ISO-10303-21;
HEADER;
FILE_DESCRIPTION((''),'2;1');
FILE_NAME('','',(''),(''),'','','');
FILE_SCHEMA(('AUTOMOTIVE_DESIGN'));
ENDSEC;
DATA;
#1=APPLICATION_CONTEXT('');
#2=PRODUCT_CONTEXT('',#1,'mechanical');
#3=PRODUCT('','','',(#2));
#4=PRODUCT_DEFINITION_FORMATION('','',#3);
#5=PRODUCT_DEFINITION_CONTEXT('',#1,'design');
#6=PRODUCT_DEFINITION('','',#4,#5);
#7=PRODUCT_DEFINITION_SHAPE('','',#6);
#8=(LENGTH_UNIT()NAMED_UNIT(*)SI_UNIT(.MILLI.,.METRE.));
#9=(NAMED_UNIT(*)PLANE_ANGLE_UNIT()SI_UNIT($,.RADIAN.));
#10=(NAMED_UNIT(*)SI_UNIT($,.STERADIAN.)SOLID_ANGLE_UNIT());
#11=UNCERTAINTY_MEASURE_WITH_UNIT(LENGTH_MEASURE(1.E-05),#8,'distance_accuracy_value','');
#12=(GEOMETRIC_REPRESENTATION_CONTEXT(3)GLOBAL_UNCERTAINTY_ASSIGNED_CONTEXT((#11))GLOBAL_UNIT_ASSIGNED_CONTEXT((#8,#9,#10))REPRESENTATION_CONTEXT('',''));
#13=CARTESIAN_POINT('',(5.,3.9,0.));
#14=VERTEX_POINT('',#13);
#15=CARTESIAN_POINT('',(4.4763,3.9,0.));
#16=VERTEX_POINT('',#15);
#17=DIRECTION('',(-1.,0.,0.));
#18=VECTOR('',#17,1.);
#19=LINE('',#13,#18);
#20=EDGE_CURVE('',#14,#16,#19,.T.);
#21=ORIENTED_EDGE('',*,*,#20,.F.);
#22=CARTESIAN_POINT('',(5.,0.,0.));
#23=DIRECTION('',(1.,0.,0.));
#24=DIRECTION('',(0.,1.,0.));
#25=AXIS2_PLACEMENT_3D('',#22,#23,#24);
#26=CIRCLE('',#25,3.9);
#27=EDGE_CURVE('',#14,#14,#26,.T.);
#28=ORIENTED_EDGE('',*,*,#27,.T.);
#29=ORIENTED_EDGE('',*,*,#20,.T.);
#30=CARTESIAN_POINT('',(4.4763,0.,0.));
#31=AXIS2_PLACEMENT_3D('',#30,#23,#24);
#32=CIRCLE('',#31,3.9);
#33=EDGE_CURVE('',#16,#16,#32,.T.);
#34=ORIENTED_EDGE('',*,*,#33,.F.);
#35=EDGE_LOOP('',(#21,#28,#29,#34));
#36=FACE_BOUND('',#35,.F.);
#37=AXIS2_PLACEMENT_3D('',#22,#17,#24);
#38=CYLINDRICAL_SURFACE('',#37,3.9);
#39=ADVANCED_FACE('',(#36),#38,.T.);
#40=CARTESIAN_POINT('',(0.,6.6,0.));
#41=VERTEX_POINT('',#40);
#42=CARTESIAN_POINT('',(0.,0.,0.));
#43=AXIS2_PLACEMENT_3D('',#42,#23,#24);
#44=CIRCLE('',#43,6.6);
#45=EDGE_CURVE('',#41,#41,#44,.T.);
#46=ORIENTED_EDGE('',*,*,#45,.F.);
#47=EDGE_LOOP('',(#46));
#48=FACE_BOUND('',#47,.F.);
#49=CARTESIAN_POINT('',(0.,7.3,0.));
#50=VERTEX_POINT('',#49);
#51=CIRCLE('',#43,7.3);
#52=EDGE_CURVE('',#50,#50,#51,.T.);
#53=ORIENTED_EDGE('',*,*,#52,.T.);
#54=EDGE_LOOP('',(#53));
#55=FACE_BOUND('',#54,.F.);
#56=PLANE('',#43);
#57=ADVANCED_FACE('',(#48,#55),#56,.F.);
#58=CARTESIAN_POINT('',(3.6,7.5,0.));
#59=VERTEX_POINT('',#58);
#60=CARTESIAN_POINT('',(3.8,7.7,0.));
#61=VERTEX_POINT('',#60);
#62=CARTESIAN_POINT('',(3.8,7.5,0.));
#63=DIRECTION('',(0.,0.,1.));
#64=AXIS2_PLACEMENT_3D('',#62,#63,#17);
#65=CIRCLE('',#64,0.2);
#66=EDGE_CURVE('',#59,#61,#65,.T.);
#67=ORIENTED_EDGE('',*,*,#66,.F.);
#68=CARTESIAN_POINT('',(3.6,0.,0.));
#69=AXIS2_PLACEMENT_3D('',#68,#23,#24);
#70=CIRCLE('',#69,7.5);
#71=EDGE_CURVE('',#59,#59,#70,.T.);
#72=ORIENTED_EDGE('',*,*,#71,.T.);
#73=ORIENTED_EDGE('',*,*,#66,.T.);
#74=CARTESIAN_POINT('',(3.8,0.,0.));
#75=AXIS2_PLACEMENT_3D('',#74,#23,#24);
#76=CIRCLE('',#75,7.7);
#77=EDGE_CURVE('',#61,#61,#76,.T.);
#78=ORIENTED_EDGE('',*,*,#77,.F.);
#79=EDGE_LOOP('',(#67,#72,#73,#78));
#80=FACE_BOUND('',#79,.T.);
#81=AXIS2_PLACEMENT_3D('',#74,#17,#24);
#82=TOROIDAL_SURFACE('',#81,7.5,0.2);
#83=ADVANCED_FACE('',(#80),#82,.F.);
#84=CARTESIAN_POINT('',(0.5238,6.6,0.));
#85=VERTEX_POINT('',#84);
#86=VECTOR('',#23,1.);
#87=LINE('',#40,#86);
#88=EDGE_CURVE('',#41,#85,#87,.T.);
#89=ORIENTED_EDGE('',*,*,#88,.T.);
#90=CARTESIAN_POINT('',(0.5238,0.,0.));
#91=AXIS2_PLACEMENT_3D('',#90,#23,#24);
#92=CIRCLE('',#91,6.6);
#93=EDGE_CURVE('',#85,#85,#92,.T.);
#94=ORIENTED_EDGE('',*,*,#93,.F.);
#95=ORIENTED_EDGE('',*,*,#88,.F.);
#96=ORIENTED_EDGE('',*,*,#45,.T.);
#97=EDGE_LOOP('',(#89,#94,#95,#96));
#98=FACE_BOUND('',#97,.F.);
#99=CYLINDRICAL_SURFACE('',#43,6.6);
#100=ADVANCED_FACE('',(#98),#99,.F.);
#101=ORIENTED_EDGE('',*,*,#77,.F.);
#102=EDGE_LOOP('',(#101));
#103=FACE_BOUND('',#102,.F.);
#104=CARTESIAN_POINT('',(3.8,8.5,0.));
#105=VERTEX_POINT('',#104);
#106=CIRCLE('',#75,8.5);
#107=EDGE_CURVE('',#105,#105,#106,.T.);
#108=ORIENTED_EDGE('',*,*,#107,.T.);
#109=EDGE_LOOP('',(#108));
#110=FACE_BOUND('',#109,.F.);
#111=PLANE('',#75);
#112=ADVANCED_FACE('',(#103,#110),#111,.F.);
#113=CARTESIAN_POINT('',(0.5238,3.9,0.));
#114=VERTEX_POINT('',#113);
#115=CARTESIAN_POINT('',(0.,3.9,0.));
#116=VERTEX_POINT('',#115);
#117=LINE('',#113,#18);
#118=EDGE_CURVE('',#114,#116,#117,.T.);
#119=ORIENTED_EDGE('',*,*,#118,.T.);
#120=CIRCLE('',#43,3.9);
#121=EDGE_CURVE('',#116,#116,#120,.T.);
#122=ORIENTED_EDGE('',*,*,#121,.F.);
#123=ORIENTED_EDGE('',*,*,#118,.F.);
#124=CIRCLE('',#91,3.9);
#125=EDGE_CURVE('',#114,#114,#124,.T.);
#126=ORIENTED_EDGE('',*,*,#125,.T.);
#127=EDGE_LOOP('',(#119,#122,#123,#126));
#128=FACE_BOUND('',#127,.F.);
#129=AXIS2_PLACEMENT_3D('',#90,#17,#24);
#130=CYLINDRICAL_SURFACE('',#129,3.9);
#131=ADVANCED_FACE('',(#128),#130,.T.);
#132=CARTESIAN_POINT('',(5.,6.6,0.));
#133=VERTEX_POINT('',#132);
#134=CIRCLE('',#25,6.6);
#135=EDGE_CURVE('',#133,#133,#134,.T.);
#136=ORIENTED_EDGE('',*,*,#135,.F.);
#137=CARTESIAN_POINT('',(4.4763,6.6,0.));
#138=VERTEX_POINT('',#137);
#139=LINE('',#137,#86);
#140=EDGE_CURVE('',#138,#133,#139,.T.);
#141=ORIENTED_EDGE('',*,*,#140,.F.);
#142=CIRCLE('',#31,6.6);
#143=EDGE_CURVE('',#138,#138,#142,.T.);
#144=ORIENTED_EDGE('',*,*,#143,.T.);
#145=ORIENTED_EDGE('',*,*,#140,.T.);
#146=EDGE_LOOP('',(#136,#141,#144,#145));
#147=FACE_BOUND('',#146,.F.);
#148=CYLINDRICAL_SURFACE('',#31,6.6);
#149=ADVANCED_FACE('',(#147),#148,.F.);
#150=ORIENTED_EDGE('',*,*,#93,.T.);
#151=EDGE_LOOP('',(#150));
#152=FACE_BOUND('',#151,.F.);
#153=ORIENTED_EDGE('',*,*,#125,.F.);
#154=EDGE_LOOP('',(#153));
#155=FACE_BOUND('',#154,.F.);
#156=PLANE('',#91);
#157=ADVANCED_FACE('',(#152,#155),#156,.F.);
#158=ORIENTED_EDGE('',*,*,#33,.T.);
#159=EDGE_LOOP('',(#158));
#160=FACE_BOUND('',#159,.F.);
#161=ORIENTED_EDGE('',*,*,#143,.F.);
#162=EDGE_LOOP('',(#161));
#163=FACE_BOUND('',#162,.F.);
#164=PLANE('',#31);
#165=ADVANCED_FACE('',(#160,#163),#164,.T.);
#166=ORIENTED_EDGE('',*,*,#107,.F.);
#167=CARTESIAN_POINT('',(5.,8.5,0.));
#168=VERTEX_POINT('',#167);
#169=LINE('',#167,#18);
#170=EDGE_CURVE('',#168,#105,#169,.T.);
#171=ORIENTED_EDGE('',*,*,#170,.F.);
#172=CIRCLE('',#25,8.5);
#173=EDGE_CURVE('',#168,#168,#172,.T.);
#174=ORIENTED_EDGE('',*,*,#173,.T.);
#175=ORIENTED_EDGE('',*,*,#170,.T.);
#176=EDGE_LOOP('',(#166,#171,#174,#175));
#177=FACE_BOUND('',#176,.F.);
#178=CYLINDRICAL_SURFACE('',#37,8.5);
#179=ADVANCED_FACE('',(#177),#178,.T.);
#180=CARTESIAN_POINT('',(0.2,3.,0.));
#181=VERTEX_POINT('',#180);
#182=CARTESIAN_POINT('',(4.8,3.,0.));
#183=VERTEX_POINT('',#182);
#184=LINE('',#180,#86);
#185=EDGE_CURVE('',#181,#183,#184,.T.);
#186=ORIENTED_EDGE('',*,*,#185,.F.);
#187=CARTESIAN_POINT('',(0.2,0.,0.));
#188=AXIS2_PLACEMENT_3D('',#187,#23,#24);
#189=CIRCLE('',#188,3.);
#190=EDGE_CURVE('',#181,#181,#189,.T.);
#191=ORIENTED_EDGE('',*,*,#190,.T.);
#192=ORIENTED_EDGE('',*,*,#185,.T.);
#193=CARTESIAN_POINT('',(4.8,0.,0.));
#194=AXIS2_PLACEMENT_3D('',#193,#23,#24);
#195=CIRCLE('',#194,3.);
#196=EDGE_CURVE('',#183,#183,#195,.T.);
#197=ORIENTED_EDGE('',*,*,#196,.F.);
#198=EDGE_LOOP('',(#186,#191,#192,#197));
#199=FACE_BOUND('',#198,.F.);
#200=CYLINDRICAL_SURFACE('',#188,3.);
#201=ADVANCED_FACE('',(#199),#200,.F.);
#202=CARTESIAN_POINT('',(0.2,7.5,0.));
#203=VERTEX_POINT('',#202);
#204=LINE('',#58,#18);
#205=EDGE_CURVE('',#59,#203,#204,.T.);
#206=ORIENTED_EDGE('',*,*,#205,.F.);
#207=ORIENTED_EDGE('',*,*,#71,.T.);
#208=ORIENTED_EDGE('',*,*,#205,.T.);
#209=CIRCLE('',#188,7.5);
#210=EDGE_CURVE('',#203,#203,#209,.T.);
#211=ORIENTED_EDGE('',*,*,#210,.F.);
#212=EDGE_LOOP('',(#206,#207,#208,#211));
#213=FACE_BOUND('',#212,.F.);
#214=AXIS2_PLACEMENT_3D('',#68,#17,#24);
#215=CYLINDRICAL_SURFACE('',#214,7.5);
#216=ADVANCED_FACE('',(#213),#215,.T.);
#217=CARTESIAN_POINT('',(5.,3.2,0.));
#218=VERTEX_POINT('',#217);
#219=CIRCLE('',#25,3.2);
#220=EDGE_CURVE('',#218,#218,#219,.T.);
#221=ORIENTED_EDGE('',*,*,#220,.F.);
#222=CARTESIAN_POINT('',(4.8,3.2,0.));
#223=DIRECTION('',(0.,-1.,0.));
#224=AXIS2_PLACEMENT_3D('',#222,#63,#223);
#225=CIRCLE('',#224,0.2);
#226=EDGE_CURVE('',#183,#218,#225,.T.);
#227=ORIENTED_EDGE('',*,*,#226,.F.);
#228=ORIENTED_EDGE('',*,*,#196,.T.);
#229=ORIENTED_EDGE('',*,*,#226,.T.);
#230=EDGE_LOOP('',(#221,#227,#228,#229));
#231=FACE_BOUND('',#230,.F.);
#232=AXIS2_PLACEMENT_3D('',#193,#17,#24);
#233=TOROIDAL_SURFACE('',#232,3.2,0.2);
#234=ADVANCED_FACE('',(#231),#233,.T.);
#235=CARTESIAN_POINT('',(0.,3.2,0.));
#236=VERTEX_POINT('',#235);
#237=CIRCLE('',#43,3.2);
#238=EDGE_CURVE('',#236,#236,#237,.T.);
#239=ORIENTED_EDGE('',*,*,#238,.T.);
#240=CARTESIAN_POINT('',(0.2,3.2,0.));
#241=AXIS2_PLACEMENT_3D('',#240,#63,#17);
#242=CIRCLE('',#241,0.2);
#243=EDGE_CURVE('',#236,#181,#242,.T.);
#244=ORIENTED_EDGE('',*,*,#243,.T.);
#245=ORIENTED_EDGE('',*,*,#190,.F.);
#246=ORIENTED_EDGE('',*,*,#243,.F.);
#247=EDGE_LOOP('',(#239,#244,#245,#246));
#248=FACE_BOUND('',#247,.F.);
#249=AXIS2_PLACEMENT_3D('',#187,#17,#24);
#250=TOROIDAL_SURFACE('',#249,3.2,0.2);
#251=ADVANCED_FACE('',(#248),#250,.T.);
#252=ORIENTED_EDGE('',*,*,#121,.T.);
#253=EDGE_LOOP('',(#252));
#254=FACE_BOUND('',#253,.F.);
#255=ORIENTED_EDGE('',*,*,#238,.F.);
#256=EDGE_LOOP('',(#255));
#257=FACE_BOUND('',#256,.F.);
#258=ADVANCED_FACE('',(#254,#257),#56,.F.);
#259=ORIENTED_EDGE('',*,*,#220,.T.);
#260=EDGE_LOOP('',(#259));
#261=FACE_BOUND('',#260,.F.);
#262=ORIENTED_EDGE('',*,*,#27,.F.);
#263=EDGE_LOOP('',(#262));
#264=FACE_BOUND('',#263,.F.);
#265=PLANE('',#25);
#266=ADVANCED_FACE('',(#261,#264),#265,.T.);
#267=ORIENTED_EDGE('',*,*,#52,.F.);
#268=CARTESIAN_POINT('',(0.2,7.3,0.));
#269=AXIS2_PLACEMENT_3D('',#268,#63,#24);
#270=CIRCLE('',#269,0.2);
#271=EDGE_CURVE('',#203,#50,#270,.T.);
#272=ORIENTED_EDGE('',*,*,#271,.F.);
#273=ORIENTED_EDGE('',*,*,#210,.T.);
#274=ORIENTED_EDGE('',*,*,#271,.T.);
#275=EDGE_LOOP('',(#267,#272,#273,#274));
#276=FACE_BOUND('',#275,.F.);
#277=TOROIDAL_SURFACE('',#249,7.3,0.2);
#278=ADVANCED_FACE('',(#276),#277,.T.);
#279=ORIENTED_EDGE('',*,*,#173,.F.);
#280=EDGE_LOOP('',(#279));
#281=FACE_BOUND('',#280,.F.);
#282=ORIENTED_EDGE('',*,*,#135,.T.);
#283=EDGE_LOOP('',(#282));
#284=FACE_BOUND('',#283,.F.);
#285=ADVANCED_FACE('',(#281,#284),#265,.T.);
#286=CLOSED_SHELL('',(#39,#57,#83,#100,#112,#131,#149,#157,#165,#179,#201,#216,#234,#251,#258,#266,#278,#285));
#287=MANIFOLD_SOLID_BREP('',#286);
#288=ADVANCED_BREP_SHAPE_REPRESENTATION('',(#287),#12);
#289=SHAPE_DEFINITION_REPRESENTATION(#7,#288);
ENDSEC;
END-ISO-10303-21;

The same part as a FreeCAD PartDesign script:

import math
import FreeCAD as App
import Part
import Sketcher

V = App.Vector

doc = App.newDocument("Part")
params = doc.addObject("Spreadsheet::Sheet", "Params")
for row, (alias, value) in enumerate([
    ("sketch1_radius", "0.2 mm"),
    ("sketch1_width", "4.6 mm"),
    ("sketch1_width2", "1.2 mm"),
    ("sketch1_height", "0.7 mm"),
    ("sketch1_height2", "2.7 mm"),
    ("revolution_angle", "360 deg"),
], start=1):
    params.set(f"A{row}", alias)
    params.set(f"B{row}", "=" + value)
    params.setAlias(f"B{row}", alias)

body = doc.addObject("PartDesign::Body", "Body")

sketch1 = doc.addObject("Sketcher::SketchObject", "Sketch")
body.addObject(sketch1)
sketch1.AttachmentSupport = (doc.XY_Plane, [""])
sketch1.MapMode = "FlatFace"
sketch1.addGeometry([
    Part.LineSegment(V(0, 3.9, 0), V(0, 3.2, 0)),
    Part.ArcOfCircle(Part.Circle(V(0.2, 3.2, 0), V(0, 0, 1), 0.2), math.radians(180), math.radians(270)),
    Part.LineSegment(V(0.2, 3, 0), V(4.8, 3, 0)),
    Part.ArcOfCircle(Part.Circle(V(4.8, 3.2, 0), V(0, 0, 1), 0.2), math.radians(-90), math.radians(0)),
    Part.LineSegment(V(5, 3.2, 0), V(5, 3.9, 0)),
    Part.LineSegment(V(5, 3.9, 0), V(4.4763, 3.9, 0)),
    Part.LineSegment(V(4.4763, 3.9, 0), V(4.4763, 6.6, 0)),
    Part.LineSegment(V(4.4763, 6.6, 0), V(5, 6.6, 0)),
    Part.LineSegment(V(5, 6.6, 0), V(5, 8.5, 0)),
    Part.LineSegment(V(5, 8.5, 0), V(3.8, 8.5, 0)),
    Part.LineSegment(V(3.8, 8.5, 0), V(3.8, 7.7, 0)),
    Part.ArcOfCircle(Part.Circle(V(3.8, 7.5, 0), V(0, 0, 1), 0.2), math.radians(180), math.radians(450)),
    Part.LineSegment(V(3.6, 7.5, 0), V(0.2, 7.5, 0)),
    Part.ArcOfCircle(Part.Circle(V(0.2, 7.3, 0), V(0, 0, 1), 0.2), math.radians(90), math.radians(180)),
    Part.LineSegment(V(0, 7.3, 0), V(0, 6.6, 0)),
    Part.LineSegment(V(0, 6.6, 0), V(0.5238, 6.6, 0)),
    Part.LineSegment(V(0.5238, 6.6, 0), V(0.5238, 3.9, 0)),
    Part.LineSegment(V(0.5238, 3.9, 0), V(0, 3.9, 0)),
], False)
sketch1.addConstraint([
    Sketcher.Constraint("Tangent", 0, 2, 1, 1),
    Sketcher.Constraint("Tangent", 1, 2, 2, 1),
    Sketcher.Constraint("Tangent", 2, 2, 3, 1),
    Sketcher.Constraint("Tangent", 3, 2, 4, 1),
    Sketcher.Constraint("Coincident", 4, 2, 5, 1),
    Sketcher.Constraint("Coincident", 5, 2, 6, 1),
    Sketcher.Constraint("Coincident", 6, 2, 7, 1),
    Sketcher.Constraint("Coincident", 7, 2, 8, 1),
    Sketcher.Constraint("Coincident", 8, 2, 9, 1),
    Sketcher.Constraint("Coincident", 9, 2, 10, 1),
    Sketcher.Constraint("Coincident", 10, 2, 11, 2),
    Sketcher.Constraint("Coincident", 11, 1, 12, 1),
    Sketcher.Constraint("Tangent", 12, 2, 13, 1),
    Sketcher.Constraint("Tangent", 13, 2, 14, 1),
    Sketcher.Constraint("Coincident", 14, 2, 15, 1),
    Sketcher.Constraint("Coincident", 15, 2, 16, 1),
    Sketcher.Constraint("Coincident", 16, 2, 17, 1),
    Sketcher.Constraint("Coincident", 17, 2, 0, 1),
    Sketcher.Constraint("Vertical", 0),
    Sketcher.Constraint("Horizontal", 2),
    Sketcher.Constraint("Vertical", 4),
    Sketcher.Constraint("Horizontal", 5),
    Sketcher.Constraint("Vertical", 6),
    Sketcher.Constraint("Horizontal", 7),
    Sketcher.Constraint("Vertical", 8),
    Sketcher.Constraint("Horizontal", 9),
    Sketcher.Constraint("Vertical", 10),
    Sketcher.Constraint("Horizontal", 12),
    Sketcher.Constraint("Vertical", 14),
    Sketcher.Constraint("Horizontal", 15),
    Sketcher.Constraint("Vertical", 16),
    Sketcher.Constraint("Horizontal", 17),
    Sketcher.Constraint("Equal", 1, 3),
    Sketcher.Constraint("Equal", 3, 11),
    Sketcher.Constraint("Equal", 11, 13),
    Sketcher.Constraint("PointOnObject", 0, 2, -2),
    Sketcher.Constraint("PointOnObject", 13, 2, -2),
    Sketcher.Constraint("Horizontal", 7, 2, 14, 2),
    Sketcher.Constraint("Horizontal", 5, 2, 16, 2),
    Sketcher.Constraint("Vertical", 4, 2, 7, 2),
    Sketcher.Constraint("Vertical", 11, 3, 9, 2),
    Sketcher.Constraint("Equal", 7, 15),
    Sketcher.Constraint("Equal", 4, 14),
    Sketcher.Constraint("Radius", 1, 0.2),
    Sketcher.Constraint("DistanceX", 2, 1, 2, 2, 4.6),
    Sketcher.Constraint("DistanceX", 9, 2, 9, 1, 1.2),
    Sketcher.Constraint("DistanceY", 0, 2, 0, 1, 0.7),
    Sketcher.Constraint("DistanceY", 6, 1, 6, 2, 2.7),
    Sketcher.Constraint("DistanceY", 8, 1, 8, 2, 1.9),
    Sketcher.Constraint("DistanceY", 10, 2, 10, 1, 0.8),
    Sketcher.Constraint("DistanceY", -1, 1, 1, 2, 3.0),
    Sketcher.Constraint("DistanceX", 5, 2, 5, 1, 0.5237),
])
sketch1.setExpression("Constraints[43]", "Params.sketch1_radius")
sketch1.setExpression("Constraints[44]", "Params.sketch1_width")
sketch1.setExpression("Constraints[45]", "Params.sketch1_width2")
sketch1.setExpression("Constraints[46]", "Params.sketch1_height")
sketch1.setExpression("Constraints[47]", "Params.sketch1_height2")
revolution = doc.addObject("PartDesign::Revolution", "Revolution")
body.addObject(revolution)
revolution.Profile = sketch1
revolution.ReferenceAxis = (sketch1, ["H_Axis"])
revolution.setExpression("Angle", "Params.revolution_angle")

doc.recompute()
